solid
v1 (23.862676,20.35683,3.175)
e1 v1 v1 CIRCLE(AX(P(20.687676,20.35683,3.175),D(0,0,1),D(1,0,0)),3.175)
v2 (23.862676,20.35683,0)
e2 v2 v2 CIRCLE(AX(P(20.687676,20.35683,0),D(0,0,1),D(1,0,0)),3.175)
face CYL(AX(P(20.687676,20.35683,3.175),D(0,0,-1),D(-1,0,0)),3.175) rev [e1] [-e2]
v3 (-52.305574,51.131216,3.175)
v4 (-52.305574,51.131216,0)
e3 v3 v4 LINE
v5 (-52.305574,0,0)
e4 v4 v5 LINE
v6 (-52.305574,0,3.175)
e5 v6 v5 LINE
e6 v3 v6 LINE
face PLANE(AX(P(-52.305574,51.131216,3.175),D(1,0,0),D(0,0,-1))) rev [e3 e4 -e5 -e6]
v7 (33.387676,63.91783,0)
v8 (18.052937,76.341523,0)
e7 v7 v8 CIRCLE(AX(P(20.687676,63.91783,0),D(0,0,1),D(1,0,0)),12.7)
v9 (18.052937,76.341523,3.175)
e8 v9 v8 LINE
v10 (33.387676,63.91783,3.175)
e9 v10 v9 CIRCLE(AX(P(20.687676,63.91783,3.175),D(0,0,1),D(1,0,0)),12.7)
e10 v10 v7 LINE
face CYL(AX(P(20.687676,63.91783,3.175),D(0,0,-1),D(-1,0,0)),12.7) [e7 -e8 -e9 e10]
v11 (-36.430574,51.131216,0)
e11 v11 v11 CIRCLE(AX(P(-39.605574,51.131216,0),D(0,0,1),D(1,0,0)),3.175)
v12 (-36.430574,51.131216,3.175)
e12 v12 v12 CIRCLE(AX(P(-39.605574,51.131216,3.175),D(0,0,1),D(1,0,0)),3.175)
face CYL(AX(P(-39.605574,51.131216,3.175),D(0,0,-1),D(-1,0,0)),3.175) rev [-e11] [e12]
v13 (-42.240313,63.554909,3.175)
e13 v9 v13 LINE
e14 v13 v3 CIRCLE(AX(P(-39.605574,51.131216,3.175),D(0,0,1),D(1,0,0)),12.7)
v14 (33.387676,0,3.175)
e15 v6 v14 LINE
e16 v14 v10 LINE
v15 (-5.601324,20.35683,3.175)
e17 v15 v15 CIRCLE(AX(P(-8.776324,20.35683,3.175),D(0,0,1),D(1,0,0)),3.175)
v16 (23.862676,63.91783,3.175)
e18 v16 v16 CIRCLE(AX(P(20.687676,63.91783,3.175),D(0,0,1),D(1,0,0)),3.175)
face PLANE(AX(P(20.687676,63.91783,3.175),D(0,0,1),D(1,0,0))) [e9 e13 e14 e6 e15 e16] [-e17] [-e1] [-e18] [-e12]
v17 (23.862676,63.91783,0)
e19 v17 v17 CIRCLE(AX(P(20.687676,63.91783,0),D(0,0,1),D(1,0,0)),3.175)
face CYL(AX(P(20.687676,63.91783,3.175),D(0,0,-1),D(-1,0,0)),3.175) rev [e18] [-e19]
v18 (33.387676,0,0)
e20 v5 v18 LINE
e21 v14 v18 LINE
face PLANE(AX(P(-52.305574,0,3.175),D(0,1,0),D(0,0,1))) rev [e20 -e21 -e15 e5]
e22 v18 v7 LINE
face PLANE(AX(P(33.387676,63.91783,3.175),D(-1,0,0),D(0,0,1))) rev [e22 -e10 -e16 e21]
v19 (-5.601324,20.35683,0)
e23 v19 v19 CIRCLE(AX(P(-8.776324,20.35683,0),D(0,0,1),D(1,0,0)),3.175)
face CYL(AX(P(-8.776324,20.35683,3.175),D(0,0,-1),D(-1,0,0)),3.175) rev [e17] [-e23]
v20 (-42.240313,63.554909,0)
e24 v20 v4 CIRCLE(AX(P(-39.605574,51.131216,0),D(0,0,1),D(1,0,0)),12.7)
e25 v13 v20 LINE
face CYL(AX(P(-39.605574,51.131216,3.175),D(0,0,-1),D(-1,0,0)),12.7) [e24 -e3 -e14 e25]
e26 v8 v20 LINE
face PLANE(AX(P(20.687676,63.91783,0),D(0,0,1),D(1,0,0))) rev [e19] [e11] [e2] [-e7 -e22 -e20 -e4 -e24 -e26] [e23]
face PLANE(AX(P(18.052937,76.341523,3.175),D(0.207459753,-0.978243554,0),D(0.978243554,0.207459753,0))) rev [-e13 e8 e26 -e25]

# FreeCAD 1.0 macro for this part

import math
import FreeCAD as App
import Part
import Sketcher
Q = App.Units.Quantity

doc = App.newDocument("Part")
body = doc.addObject("PartDesign::Body", "Body")

sketch1 = doc.addObject("Sketcher::SketchObject", "Sketch")
body.addObject(sketch1)
sketch1.AttachmentSupport = (doc.XY_Plane, [""])
sketch1.MapMode = "FlatFace"
sketch1.addGeometry([
    Part.LineSegment(App.Vector(18.1, 76.3, 0), App.Vector(-42.2, 63.6, 0)),
    Part.ArcOfCircle(Part.Circle(App.Vector(-39.6, 51.1, 0), App.Vector(0, 0, 1), 12.7), math.radians(102), math.radians(180)),
    Part.LineSegment(App.Vector(-52.3, 51.1, 0), App.Vector(-52.3, 0, 0)),
    Part.LineSegment(App.Vector(-52.3, 0, 0), App.Vector(33.4, 0, 0)),
    Part.LineSegment(App.Vector(33.4, 0, 0), App.Vector(33.4, 63.9, 0)),
    Part.ArcOfCircle(Part.Circle(App.Vector(20.7, 63.9, 0), App.Vector(0, 0, 1), 12.7), math.radians(0), math.radians(102)),
    Part.Circle(App.Vector(-8.8, 20.4, 0), App.Vector(0, 0, 1), 3.2),
    Part.Circle(App.Vector(20.7, 20.4, 0), App.Vector(0, 0, 1), 3.2),
    Part.Circle(App.Vector(-39.6, 51.1, 0), App.Vector(0, 0, 1), 3.2),
    Part.Circle(App.Vector(20.7, 63.9, 0), App.Vector(0, 0, 1), 3.2),
], False)
sketch1.addConstraint([
    Sketcher.Constraint("Tangent", 0, 2, 1, 1),
    Sketcher.Constraint("Tangent", 1, 2, 2, 1),
    Sketcher.Constraint("Coincident", 2, 2, 3, 1),
    Sketcher.Constraint("Coincident", 3, 2, 4, 1),
    Sketcher.Constraint("Tangent", 4, 2, 5, 1),
    Sketcher.Constraint("Tangent", 5, 2, 0, 1),
    Sketcher.Constraint("Vertical", 2),
    Sketcher.Constraint("Horizontal", 3),
    Sketcher.Constraint("Vertical", 4),
    Sketcher.Constraint("Coincident", 8, 3, 1, 3),
    Sketcher.Constraint("Coincident", 9, 3, 5, 3),
    Sketcher.Constraint("Equal", 1, 5),
    Sketcher.Constraint("Equal", 6, 7),
    Sketcher.Constraint("Equal", 7, 8),
    Sketcher.Constraint("Equal", 8, 9),
    Sketcher.Constraint("PointOnObject", 2, 2, -1),
    Sketcher.Constraint("Horizontal", 6, 3, 7, 3),
    Sketcher.Constraint("Vertical", 5, 3, 7, 3),
    Sketcher.Constraint("Radius", 1, Q("0.5 in")),
    Sketcher.Constraint("Diameter", 6, Q("0.25 in")),
    Sketcher.Constraint("DistanceX", 6, 3, 5, 3, Q("1.16 in")),
    Sketcher.Constraint("DistanceY", 6, 3, 5, 3, Q("1.715 in")),
    Sketcher.Constraint("DistanceX", 3, 1, 3, 2, 85.69325),
    Sketcher.Constraint("DistanceY", 4, 1, 4, 2, 63.91783),
    Sketcher.Constraint("Distance", 0, 61.634191),
    Sketcher.Constraint("DistanceX", 1, 3, -1, 1, 39.605574),
])
pad1 = doc.addObject("PartDesign::Pad", "Pad")
body.addObject(pad1)
pad1.Profile = sketch1
pad1.Length = Q("0.125 in")

doc.recompute()
